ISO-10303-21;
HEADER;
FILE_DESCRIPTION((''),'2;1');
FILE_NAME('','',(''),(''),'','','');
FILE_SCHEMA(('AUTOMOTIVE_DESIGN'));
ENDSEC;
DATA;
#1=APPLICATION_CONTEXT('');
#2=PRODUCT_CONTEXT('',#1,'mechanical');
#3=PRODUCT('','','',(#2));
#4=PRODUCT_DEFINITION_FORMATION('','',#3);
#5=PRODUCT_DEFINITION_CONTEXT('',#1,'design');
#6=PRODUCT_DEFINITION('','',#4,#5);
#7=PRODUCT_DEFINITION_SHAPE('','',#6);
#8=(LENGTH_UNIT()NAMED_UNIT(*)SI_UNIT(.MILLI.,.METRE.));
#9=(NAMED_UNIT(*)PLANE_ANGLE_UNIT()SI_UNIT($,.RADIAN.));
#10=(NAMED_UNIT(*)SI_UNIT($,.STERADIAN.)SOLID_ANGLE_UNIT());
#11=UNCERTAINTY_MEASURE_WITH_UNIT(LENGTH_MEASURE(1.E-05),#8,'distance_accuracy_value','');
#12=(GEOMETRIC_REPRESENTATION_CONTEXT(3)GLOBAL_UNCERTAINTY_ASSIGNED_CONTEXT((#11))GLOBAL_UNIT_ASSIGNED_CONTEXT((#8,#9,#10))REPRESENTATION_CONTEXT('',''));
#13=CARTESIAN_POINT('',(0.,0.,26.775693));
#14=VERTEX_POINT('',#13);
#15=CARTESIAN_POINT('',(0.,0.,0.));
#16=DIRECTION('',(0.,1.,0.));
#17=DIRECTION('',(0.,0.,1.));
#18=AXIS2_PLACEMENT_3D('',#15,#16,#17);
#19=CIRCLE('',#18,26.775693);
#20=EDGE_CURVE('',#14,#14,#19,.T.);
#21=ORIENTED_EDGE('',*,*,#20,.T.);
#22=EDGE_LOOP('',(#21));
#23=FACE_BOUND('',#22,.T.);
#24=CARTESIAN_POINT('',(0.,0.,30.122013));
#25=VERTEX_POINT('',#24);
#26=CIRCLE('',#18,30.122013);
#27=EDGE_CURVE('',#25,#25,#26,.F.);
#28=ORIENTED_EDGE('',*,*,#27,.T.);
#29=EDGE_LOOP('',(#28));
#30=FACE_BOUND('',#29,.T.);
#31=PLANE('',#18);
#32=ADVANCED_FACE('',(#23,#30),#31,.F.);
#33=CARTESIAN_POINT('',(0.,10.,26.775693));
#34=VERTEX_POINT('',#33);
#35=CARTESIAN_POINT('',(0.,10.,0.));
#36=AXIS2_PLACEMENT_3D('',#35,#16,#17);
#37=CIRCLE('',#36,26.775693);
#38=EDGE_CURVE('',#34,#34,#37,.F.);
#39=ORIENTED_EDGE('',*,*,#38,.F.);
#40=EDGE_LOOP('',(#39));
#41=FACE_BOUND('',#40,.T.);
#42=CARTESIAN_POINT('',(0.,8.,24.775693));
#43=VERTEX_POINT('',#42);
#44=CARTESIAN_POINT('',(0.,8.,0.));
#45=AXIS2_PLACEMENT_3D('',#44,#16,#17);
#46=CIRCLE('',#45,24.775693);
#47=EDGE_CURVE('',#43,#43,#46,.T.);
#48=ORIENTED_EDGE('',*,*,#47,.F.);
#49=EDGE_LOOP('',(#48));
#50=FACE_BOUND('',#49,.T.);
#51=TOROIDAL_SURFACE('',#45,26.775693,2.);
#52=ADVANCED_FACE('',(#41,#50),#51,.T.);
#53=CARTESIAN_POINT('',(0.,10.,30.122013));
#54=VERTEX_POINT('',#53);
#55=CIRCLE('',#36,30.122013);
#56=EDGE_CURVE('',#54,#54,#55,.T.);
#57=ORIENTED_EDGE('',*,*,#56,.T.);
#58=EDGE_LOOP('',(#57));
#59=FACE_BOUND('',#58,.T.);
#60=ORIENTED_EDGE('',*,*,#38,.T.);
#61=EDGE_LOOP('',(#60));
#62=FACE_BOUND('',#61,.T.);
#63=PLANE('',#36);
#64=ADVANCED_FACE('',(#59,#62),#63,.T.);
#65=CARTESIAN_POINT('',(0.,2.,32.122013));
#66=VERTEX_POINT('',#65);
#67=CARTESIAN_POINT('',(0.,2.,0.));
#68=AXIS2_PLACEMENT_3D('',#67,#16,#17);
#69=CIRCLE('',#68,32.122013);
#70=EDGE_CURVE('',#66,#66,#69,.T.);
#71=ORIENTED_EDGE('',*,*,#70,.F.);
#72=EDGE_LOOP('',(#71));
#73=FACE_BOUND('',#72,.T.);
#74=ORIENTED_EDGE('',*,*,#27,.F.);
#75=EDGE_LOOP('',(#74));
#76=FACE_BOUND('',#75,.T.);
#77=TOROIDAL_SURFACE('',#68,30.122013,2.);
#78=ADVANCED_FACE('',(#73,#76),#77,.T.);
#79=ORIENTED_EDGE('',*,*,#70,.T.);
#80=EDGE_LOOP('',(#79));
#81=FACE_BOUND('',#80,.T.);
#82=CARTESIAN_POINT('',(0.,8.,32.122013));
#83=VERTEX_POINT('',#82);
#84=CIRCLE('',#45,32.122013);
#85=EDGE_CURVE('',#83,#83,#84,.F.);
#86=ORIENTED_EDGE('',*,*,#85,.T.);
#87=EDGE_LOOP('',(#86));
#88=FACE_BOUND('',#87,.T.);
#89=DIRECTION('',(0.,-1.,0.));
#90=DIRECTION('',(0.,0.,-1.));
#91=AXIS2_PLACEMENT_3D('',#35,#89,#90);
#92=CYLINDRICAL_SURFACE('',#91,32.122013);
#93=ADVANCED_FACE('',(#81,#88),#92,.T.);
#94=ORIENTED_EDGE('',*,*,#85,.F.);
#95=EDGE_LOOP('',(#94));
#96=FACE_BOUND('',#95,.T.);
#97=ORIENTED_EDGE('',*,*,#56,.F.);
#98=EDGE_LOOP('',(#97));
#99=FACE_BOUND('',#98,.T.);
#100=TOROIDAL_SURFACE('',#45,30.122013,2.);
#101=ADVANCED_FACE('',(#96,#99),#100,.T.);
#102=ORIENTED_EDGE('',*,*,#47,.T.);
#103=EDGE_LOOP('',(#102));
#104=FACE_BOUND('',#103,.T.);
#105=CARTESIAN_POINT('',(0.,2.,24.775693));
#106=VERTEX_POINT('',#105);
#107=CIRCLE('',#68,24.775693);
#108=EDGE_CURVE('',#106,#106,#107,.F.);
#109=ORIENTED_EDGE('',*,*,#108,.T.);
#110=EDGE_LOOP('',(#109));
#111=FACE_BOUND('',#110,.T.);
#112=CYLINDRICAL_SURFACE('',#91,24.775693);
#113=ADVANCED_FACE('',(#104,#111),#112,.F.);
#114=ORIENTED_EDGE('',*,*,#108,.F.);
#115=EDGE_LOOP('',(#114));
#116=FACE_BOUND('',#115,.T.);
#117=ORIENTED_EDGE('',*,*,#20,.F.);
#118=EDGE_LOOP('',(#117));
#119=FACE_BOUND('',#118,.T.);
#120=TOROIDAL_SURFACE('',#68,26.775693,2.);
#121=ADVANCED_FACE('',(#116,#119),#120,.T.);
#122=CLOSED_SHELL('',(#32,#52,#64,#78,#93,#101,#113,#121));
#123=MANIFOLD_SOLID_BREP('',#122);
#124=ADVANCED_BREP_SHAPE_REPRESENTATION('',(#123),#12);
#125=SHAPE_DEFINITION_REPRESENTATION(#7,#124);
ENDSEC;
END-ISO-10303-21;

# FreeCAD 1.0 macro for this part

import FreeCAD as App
import Part
import Sketcher
from FreeCAD import Vector


def edges_at(feature, points):
    """Names of the edges that pass closest to the given points."""
    edges = feature.Shape.Edges
    near = lambda p: min(range(len(edges)), key=lambda i: edges[i].distToShape(Part.Vertex(*p))[0])
    return sorted({f"Edge{near(p) + 1}" for p in points})

doc = App.newDocument("Part")
body = doc.addObject("PartDesign::Body", "Body")

# Sketch on XZ plane
sketch1 = doc.addObject("Sketcher::SketchObject", "Sketch")
body.addObject(sketch1)
sketch1.AttachmentSupport = (doc.XZ_Plane, [""])
sketch1.MapMode = "FlatFace"
sketch1.addGeometry([
    Part.Circle(Vector(0, 0, 0), Vector(0, 0, 1), 32.122013),
    Part.Circle(Vector(0, 0, 0), Vector(0, 0, 1), 24.775693),
], False)
sketch1.addConstraint([
    Sketcher.Constraint("Coincident", 0, 3, -1, 1),
    Sketcher.Constraint("Coincident", 1, 3, -1, 1),
    Sketcher.Constraint("Diameter", 0, 64.244027),
    Sketcher.Constraint("Diameter", 1, 49.551386),
])
pad1 = doc.addObject("PartDesign::Pad", "Pad")
body.addObject(pad1)
pad1.Profile = sketch1
pad1.Length = 10
pad1.Reversed = True
doc.recompute()

fillet = doc.addObject("PartDesign::Fillet", "Fillet")
body.addObject(fillet)
fillet.Base = (pad1, edges_at(pad1, [
    (-32.122, 0, 0),
    (-32.122, 10, 0),
    (-24.776, 0, 0),
    (-24.776, 10, 0),
]))
fillet.Radius = 2

doc.recompute()
